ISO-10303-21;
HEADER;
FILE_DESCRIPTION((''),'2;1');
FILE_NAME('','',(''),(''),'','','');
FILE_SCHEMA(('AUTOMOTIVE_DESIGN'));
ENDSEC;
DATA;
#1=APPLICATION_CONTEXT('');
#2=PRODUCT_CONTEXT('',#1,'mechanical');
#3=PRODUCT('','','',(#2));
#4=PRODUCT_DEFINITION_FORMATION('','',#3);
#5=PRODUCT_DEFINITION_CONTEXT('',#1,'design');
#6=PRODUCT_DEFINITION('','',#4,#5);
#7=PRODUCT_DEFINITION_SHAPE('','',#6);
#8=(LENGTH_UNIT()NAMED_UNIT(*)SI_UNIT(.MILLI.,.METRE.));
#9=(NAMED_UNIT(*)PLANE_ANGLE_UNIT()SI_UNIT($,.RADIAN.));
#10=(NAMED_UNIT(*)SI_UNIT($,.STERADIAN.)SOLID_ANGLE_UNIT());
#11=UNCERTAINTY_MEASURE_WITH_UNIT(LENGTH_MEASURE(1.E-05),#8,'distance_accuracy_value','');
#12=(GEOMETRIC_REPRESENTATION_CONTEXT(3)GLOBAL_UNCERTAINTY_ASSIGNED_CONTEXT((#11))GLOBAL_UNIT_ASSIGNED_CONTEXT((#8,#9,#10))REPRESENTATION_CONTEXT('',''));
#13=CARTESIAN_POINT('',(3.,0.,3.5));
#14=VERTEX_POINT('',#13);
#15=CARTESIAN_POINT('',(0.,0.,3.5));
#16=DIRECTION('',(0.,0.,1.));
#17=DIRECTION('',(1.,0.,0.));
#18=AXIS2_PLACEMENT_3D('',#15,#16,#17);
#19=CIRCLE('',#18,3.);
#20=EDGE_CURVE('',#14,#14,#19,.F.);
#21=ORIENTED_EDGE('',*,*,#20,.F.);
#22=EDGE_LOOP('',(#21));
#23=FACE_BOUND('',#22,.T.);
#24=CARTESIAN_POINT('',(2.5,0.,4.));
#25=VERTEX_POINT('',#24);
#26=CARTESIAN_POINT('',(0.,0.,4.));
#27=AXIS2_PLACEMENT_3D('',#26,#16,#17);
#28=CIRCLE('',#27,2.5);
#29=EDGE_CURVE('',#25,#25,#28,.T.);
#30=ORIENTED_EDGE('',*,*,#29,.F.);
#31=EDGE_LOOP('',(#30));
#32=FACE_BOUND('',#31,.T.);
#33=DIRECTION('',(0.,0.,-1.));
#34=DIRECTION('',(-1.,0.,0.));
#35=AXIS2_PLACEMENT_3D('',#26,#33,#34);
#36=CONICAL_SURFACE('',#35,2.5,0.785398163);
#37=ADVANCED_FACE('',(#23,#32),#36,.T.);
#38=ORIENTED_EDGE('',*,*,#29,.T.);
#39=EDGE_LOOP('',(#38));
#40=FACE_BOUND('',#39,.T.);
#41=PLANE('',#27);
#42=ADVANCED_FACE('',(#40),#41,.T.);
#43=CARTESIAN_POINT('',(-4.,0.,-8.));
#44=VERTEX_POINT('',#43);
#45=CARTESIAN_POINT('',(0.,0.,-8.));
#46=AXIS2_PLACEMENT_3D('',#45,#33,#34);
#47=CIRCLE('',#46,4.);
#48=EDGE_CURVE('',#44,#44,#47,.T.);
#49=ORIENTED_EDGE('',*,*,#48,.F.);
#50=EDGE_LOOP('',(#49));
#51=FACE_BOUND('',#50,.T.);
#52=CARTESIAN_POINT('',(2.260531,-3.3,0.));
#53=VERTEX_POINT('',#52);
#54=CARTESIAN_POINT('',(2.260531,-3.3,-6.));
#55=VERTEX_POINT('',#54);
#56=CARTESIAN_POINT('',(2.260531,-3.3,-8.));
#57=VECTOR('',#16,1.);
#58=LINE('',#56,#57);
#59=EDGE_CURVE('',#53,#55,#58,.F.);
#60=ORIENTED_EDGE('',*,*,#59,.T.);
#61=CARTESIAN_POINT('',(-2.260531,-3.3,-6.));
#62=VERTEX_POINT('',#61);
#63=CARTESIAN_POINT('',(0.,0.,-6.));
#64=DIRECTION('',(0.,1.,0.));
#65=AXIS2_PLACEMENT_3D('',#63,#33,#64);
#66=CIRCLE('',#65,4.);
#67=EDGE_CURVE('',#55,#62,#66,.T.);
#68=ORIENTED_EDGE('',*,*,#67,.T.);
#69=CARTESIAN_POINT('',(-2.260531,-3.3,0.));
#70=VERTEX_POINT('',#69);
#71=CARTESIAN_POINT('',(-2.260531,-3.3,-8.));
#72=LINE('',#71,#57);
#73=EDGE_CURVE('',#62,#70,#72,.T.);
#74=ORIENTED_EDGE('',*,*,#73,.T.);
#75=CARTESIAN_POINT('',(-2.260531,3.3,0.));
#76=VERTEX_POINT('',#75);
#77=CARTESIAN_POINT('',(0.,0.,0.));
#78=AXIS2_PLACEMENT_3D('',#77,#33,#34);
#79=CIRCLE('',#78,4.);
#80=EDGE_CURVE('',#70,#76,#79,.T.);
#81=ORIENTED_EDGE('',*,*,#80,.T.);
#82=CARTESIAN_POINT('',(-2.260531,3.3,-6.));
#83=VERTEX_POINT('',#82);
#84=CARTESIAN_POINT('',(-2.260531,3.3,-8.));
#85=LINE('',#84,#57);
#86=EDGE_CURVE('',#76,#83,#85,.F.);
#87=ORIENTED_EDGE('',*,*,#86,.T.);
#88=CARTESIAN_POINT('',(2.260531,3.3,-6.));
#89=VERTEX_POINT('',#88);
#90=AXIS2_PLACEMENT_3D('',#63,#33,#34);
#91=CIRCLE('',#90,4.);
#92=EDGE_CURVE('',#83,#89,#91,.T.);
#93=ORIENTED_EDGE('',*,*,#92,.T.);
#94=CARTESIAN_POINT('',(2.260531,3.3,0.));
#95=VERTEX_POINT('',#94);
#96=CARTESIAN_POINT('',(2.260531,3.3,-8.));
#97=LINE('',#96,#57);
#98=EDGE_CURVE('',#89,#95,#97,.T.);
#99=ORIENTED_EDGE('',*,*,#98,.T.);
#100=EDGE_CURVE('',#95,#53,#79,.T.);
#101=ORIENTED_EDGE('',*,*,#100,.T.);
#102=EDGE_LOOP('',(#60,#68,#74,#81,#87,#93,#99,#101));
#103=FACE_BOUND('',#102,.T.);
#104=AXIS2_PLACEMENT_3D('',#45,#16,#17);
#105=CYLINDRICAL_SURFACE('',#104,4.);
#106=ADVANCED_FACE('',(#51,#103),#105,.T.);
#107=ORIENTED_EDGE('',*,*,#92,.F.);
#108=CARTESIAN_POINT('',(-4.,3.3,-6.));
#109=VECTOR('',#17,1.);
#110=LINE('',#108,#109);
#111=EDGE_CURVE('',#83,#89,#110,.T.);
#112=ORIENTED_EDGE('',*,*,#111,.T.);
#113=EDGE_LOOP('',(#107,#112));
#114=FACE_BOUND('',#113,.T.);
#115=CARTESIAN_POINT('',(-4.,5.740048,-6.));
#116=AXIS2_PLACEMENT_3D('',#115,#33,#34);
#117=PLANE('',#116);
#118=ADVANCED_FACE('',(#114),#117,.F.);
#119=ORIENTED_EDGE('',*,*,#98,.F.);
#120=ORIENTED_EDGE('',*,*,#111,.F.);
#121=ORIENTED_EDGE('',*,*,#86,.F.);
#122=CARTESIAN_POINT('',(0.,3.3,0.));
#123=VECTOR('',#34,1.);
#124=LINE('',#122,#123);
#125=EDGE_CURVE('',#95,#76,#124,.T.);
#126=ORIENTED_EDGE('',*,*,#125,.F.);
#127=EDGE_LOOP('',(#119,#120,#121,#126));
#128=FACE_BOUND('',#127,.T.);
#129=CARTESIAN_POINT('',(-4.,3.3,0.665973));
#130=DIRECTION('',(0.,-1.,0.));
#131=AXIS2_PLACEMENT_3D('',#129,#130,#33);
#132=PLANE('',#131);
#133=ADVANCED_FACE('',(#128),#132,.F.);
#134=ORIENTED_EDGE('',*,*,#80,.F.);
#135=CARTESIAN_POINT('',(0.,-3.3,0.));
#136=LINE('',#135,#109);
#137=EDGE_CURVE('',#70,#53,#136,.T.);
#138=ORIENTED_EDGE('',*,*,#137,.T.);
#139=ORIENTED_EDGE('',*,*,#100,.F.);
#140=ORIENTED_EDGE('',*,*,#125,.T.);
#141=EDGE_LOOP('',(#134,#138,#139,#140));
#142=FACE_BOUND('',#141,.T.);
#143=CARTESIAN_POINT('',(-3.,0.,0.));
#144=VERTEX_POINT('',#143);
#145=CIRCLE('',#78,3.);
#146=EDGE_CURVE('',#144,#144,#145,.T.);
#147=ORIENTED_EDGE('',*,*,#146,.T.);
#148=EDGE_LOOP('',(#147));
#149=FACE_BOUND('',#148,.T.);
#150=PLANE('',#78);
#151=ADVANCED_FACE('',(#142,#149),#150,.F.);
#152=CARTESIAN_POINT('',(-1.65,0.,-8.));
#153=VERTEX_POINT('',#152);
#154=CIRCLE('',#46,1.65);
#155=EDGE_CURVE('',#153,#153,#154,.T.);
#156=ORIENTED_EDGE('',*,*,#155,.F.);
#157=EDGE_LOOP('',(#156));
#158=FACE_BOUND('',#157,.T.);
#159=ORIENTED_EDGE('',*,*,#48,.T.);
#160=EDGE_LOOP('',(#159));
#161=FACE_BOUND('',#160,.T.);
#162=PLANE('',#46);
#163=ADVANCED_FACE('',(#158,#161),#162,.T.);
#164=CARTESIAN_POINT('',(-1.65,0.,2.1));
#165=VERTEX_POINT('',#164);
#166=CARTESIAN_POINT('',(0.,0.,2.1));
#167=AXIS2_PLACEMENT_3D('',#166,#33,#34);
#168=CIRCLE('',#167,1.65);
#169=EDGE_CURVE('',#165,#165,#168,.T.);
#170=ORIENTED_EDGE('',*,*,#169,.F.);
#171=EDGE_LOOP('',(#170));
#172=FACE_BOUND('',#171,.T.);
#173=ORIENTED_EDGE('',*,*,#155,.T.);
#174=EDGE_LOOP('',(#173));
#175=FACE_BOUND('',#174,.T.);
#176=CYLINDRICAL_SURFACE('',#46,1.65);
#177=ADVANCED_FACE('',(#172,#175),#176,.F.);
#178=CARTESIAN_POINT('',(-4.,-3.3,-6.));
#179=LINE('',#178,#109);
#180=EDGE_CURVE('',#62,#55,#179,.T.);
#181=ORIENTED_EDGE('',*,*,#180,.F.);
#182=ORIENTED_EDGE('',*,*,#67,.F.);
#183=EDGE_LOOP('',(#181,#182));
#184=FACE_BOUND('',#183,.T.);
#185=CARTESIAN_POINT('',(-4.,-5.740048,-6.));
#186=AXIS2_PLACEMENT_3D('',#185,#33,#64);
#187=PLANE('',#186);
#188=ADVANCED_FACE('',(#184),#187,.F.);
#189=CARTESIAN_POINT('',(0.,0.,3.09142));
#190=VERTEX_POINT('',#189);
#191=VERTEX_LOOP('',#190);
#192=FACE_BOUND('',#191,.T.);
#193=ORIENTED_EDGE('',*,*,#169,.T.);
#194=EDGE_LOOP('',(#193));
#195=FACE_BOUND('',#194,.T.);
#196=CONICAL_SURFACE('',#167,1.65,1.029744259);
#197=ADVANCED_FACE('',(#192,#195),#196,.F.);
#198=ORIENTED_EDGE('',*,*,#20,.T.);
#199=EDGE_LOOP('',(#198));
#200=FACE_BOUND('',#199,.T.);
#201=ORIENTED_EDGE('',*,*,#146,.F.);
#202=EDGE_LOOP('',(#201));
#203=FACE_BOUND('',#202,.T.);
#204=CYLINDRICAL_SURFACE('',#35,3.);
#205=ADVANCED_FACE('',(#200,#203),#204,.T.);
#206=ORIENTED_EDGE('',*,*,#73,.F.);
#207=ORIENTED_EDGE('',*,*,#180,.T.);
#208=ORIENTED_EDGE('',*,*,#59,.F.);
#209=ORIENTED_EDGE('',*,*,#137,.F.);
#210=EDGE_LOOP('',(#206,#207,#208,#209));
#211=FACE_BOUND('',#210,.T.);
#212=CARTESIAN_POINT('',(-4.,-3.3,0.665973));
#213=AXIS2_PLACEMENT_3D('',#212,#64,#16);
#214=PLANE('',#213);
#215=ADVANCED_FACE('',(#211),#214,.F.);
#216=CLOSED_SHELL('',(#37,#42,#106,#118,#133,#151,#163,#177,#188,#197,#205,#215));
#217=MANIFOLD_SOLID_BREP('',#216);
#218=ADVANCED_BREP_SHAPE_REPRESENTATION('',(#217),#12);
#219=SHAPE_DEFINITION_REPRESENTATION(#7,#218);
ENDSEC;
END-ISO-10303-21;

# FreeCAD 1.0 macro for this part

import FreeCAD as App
import Part
import Sketcher
from FreeCAD import Vector


def edges_at(feature, points):
    """Names of the edges that pass closest to the given points."""
    edges = feature.Shape.Edges
    near = lambda p: min(range(len(edges)), key=lambda i: edges[i].distToShape(Part.Vertex(*p))[0])
    return sorted({f"Edge{near(p) + 1}" for p in points})


def add_polygon(sketch, points):
    """Adds a closed chain of lines whose ends are joined by coincident constraints."""
    first, n = sketch.GeometryCount, len(points)
    for a, b in zip(points, points[1:] + points[:1]):
        sketch.addGeometry(Part.LineSegment(App.Vector(*a, 0), App.Vector(*b, 0)), False)
    for i in range(n):
        sketch.addConstraint(Sketcher.Constraint("Coincident", first + i, 2, first + (i + 1) % n, 1))

doc = App.newDocument("Part")
body = doc.addObject("PartDesign::Body", "Body")

# Sketch on XY plane
sketch1 = body.newObject("Sketcher::SketchObject", "Sketch")
sketch1.AttachmentSupport = (doc.getObject("XY_Plane"), [""])
sketch1.MapMode = "FlatFace"
sketch1.addGeometry(Part.Circle(Vector(0, 0, 0), Vector(0, 0, 1), 3), False)
sketch1.addConstraint([
    Sketcher.Constraint("Coincident", 0, 3, -1, 1),
    Sketcher.Constraint("Diameter", 0, 6.0),
])
pad1 = body.newObject("PartDesign::Pad", "Pad")
pad1.Profile = sketch1
pad1.Length = 4
doc.recompute()

chamfer = body.newObject("PartDesign::Chamfer", "Chamfer")
chamfer.Base = (pad1, edges_at(pad1, [(-3, 0, 4)]))
chamfer.Size = 0.5

# Sketch on XY plane
sketch2 = body.newObject("Sketcher::SketchObject", "Sketch001")
sketch2.AttachmentSupport = (doc.getObject("XY_Plane"), [""])
sketch2.MapMode = "FlatFace"
sketch2.addGeometry(Part.Circle(Vector(0, 0, 0), Vector(0, 0, 1), 4), False)
sketch2.addConstraint([
    Sketcher.Constraint("Coincident", 0, 3, -1, 1),
    Sketcher.Constraint("Diameter", 0, 8.0),
])
pad2 = body.newObject("PartDesign::Pad", "Pad001")
pad2.Profile = sketch2
pad2.Length = 8
pad2.Reversed = True

# Sketch on XY plane
sketch3 = body.newObject("Sketcher::SketchObject", "Sketch002")
sketch3.AttachmentSupport = (doc.getObject("XY_Plane"), [""])
sketch3.MapMode = "FlatFace"
sketch3.AttachmentOffset = App.Placement(Vector(0, 0, -8), App.Rotation())
sketch3.addGeometry(Part.Circle(Vector(0, 0, 0), Vector(0, 0, 1), 1.6), False)
sketch3.addConstraint([
    Sketcher.Constraint("Coincident", 0, 3, -1, 1),
    Sketcher.Constraint("Diameter", 0, 3.3),
])
doc.recompute()
hole = body.newObject("PartDesign::Hole", "Hole")
hole.Profile = sketch3
hole.ThreadType = "None"
hole.Diameter = 3.3
hole.DepthType = "Dimension"
hole.Depth = 10.1
hole.DrillPoint = "Angled"
hole.DrillPointAngle = 118
hole.Reversed = True

# Sketch on YZ plane
sketch4 = body.newObject("Sketcher::SketchObject", "Sketch003")
sketch4.AttachmentSupport = (doc.getObject("YZ_Plane"), [""])
sketch4.MapMode = "FlatFace"
add_polygon(sketch4, [(5.7, 0.7), (3.3, 0.7), (3.3, -6), (5.7, -6)])  # lines 0-3
add_polygon(sketch4, [(-3.3, 0.7), (-5.7, 0.7), (-5.7, -6), (-3.3, -6)])  # lines 4-7
sketch4.addConstraint([
    Sketcher.Constraint("Horizontal", 0),
    Sketcher.Constraint("Vertical", 1),
    Sketcher.Constraint("Horizontal", 2),
    Sketcher.Constraint("Vertical", 3),
    Sketcher.Constraint("Horizontal", 4),
    Sketcher.Constraint("Vertical", 5),
    Sketcher.Constraint("Horizontal", 6),
    Sketcher.Constraint("Vertical", 7),
    Sketcher.Constraint("Symmetric", 3, 2, 4, 2, -2),
    Sketcher.Constraint("Symmetric", 1, 2, 6, 2, -2),
    Sketcher.Constraint("DistanceY", 1, 2, -1, 1, 6.0),
    Sketcher.Constraint("DistanceX", -1, 1, 0, 2, 3.3),
    Sketcher.Constraint("DistanceX", 0, 2, 0, 1, 2.440048),
    Sketcher.Constraint("DistanceY", 1, 2, 1, 1, 6.665973),
])
pocket1 = body.newObject("PartDesign::Pocket", "Pocket")
pocket1.Profile = sketch4
pocket1.Type = "ThroughAll"
pocket1.Midplane = True

doc.recompute()
